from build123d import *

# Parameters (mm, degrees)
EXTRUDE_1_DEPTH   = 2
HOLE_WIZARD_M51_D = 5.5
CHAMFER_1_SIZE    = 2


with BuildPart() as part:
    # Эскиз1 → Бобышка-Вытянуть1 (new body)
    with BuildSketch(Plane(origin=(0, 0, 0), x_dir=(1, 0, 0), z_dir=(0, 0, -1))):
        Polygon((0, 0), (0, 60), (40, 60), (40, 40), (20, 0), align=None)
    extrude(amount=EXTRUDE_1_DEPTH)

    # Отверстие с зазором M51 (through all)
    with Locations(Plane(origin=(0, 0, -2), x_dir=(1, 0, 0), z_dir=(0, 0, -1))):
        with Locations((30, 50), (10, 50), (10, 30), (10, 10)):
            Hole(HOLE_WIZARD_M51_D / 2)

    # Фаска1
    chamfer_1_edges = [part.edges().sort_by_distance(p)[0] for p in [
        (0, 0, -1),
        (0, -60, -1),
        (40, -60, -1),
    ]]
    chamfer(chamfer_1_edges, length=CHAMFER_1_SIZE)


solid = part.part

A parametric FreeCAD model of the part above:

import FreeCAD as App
import Part
import Sketcher

V = App.Vector


def edges_at(feature, points):
    """Names of the edges that pass closest to the given points."""
    edges = feature.Shape.Edges
    near = lambda p: min(range(len(edges)), key=lambda i: edges[i].distToShape(Part.Vertex(*p))[0])
    return sorted({f"Edge{near(p) + 1}" for p in points})


def add_polygon(sketch, points):
    """Adds a closed chain of lines whose ends are joined by coincident constraints."""
    first, n = sketch.GeometryCount, len(points)
    for a, b in zip(points, points[1:] + points[:1]):
        sketch.addGeometry(Part.LineSegment(App.Vector(*a, 0), App.Vector(*b, 0)), False)
    for i in range(n):
        sketch.addConstraint(Sketcher.Constraint("Coincident", first + i, 2, first + (i + 1) % n, 1))

doc = App.newDocument("Part")
params = doc.addObject("Spreadsheet::Sheet", "Params")
for row, (alias, value) in enumerate([
    ("sketch1_width", "20 mm"),
    ("sketch1_width2", "40 mm"),
    ("sketch1_height", "60 mm"),
    ("pad1_length", "2 mm"),
    ("sketch2_diameter", "5.5 mm"),
    ("hole_diameter", "5.5 mm"),
    ("chamfer_size", "2 mm"),
], start=1):
    params.set(f"A{row}", alias)
    params.set(f"B{row}", "=" + value)
    params.setAlias(f"B{row}", alias)

body = doc.addObject("PartDesign::Body", "Body")

sketch1 = doc.addObject("Sketcher::SketchObject", "Sketch")
body.addObject(sketch1)
sketch1.AttachmentSupport = (doc.XY_Plane, [""])
sketch1.MapMode = "FlatFace"
add_polygon(sketch1, [(0, -60), (0, 0), (20, 0), (40, -40), (40, -60)])
sketch1.addConstraint(Sketcher.Constraint("Vertical", 0))
sketch1.addConstraint(Sketcher.Constraint("Horizontal", 1))
sketch1.addConstraint(Sketcher.Constraint("Vertical", 3))
sketch1.addConstraint(Sketcher.Constraint("Horizontal", 4))
sketch1.addConstraint(Sketcher.Constraint("Coincident", 0, 2, -1, 1))
sketch1.addConstraint(Sketcher.Constraint("Equal", 1, 3))
sketch1.addConstraint(Sketcher.Constraint("DistanceX", 1, 1, 1, 2, 20.0))
sketch1.addConstraint(Sketcher.Constraint("DistanceX", 4, 2, 4, 1, 40.0))
sketch1.addConstraint(Sketcher.Constraint("DistanceY", 0, 1, 0, 2, 60.0))
sketch1.setExpression("Constraints[11]", "Params.sketch1_width")
sketch1.setExpression("Constraints[12]", "Params.sketch1_width2")
sketch1.setExpression("Constraints[13]", "Params.sketch1_height")
pad1 = doc.addObject("PartDesign::Pad", "Pad")
body.addObject(pad1)
pad1.Profile = sketch1
pad1.setExpression("Length", "Params.pad1_length")
pad1.Reversed = True

sketch2 = doc.addObject("Sketcher::SketchObject", "Sketch001")
body.addObject(sketch2)
sketch2.AttachmentSupport = (doc.XY_Plane, [""])
sketch2.MapMode = "FlatFace"
sketch2.AttachmentOffset = App.Placement(V(0, 0, -2), App.Rotation())
sketch2.addGeometry(Part.Circle(V(30, -50, 0), V(0, 0, 1), 2.8), False)
sketch2.addGeometry(Part.Circle(V(10, -50, 0), V(0, 0, 1), 2.8), False)
sketch2.addGeometry(Part.Circle(V(10, -30, 0), V(0, 0, 1), 2.8), False)
sketch2.addGeometry(Part.Circle(V(10, -10, 0), V(0, 0, 1), 2.8), False)
sketch2.addConstraint(Sketcher.Constraint("Equal", 0, 1))
sketch2.addConstraint(Sketcher.Constraint("Equal", 1, 2))
sketch2.addConstraint(Sketcher.Constraint("Equal", 2, 3))
sketch2.addConstraint(Sketcher.Constraint("Horizontal", 0, 3, 1, 3))
sketch2.addConstraint(Sketcher.Constraint("Vertical", 1, 3, 2, 3))
sketch2.addConstraint(Sketcher.Constraint("Vertical", 2, 3, 3, 3))
sketch2.addConstraint(Sketcher.Constraint("Diameter", 0, 5.5))
sketch2.addConstraint(Sketcher.Constraint("DistanceX", -1, 1, 0, 3, 30.0))
sketch2.addConstraint(Sketcher.Constraint("DistanceY", 0, 3, -1, 1, 50.0))
sketch2.addConstraint(Sketcher.Constraint("DistanceX", -1, 1, 1, 3, 10.0))
sketch2.addConstraint(Sketcher.Constraint("DistanceY", 2, 3, -1, 1, 30.0))
sketch2.addConstraint(Sketcher.Constraint("DistanceY", 3, 3, -1, 1, 10.0))
sketch2.setExpression("Constraints[6]", "Params.sketch2_diameter")
doc.recompute()
hole = doc.addObject("PartDesign::Hole", "Hole")
body.addObject(hole)
hole.Profile = sketch2
hole.ThreadType = "None"
hole.setExpression("Diameter", "Params.hole_diameter")
hole.DepthType = "ThroughAll"
hole.Reversed = True
doc.recompute()

chamfer = doc.addObject("PartDesign::Chamfer", "Chamfer")
body.addObject(chamfer)
chamfer.Base = (hole, edges_at(hole, [(0, 0, -1), (0, -60, -1), (40, -60, -1)]))
chamfer.setExpression("Size", "Params.chamfer_size")

doc.recompute()
